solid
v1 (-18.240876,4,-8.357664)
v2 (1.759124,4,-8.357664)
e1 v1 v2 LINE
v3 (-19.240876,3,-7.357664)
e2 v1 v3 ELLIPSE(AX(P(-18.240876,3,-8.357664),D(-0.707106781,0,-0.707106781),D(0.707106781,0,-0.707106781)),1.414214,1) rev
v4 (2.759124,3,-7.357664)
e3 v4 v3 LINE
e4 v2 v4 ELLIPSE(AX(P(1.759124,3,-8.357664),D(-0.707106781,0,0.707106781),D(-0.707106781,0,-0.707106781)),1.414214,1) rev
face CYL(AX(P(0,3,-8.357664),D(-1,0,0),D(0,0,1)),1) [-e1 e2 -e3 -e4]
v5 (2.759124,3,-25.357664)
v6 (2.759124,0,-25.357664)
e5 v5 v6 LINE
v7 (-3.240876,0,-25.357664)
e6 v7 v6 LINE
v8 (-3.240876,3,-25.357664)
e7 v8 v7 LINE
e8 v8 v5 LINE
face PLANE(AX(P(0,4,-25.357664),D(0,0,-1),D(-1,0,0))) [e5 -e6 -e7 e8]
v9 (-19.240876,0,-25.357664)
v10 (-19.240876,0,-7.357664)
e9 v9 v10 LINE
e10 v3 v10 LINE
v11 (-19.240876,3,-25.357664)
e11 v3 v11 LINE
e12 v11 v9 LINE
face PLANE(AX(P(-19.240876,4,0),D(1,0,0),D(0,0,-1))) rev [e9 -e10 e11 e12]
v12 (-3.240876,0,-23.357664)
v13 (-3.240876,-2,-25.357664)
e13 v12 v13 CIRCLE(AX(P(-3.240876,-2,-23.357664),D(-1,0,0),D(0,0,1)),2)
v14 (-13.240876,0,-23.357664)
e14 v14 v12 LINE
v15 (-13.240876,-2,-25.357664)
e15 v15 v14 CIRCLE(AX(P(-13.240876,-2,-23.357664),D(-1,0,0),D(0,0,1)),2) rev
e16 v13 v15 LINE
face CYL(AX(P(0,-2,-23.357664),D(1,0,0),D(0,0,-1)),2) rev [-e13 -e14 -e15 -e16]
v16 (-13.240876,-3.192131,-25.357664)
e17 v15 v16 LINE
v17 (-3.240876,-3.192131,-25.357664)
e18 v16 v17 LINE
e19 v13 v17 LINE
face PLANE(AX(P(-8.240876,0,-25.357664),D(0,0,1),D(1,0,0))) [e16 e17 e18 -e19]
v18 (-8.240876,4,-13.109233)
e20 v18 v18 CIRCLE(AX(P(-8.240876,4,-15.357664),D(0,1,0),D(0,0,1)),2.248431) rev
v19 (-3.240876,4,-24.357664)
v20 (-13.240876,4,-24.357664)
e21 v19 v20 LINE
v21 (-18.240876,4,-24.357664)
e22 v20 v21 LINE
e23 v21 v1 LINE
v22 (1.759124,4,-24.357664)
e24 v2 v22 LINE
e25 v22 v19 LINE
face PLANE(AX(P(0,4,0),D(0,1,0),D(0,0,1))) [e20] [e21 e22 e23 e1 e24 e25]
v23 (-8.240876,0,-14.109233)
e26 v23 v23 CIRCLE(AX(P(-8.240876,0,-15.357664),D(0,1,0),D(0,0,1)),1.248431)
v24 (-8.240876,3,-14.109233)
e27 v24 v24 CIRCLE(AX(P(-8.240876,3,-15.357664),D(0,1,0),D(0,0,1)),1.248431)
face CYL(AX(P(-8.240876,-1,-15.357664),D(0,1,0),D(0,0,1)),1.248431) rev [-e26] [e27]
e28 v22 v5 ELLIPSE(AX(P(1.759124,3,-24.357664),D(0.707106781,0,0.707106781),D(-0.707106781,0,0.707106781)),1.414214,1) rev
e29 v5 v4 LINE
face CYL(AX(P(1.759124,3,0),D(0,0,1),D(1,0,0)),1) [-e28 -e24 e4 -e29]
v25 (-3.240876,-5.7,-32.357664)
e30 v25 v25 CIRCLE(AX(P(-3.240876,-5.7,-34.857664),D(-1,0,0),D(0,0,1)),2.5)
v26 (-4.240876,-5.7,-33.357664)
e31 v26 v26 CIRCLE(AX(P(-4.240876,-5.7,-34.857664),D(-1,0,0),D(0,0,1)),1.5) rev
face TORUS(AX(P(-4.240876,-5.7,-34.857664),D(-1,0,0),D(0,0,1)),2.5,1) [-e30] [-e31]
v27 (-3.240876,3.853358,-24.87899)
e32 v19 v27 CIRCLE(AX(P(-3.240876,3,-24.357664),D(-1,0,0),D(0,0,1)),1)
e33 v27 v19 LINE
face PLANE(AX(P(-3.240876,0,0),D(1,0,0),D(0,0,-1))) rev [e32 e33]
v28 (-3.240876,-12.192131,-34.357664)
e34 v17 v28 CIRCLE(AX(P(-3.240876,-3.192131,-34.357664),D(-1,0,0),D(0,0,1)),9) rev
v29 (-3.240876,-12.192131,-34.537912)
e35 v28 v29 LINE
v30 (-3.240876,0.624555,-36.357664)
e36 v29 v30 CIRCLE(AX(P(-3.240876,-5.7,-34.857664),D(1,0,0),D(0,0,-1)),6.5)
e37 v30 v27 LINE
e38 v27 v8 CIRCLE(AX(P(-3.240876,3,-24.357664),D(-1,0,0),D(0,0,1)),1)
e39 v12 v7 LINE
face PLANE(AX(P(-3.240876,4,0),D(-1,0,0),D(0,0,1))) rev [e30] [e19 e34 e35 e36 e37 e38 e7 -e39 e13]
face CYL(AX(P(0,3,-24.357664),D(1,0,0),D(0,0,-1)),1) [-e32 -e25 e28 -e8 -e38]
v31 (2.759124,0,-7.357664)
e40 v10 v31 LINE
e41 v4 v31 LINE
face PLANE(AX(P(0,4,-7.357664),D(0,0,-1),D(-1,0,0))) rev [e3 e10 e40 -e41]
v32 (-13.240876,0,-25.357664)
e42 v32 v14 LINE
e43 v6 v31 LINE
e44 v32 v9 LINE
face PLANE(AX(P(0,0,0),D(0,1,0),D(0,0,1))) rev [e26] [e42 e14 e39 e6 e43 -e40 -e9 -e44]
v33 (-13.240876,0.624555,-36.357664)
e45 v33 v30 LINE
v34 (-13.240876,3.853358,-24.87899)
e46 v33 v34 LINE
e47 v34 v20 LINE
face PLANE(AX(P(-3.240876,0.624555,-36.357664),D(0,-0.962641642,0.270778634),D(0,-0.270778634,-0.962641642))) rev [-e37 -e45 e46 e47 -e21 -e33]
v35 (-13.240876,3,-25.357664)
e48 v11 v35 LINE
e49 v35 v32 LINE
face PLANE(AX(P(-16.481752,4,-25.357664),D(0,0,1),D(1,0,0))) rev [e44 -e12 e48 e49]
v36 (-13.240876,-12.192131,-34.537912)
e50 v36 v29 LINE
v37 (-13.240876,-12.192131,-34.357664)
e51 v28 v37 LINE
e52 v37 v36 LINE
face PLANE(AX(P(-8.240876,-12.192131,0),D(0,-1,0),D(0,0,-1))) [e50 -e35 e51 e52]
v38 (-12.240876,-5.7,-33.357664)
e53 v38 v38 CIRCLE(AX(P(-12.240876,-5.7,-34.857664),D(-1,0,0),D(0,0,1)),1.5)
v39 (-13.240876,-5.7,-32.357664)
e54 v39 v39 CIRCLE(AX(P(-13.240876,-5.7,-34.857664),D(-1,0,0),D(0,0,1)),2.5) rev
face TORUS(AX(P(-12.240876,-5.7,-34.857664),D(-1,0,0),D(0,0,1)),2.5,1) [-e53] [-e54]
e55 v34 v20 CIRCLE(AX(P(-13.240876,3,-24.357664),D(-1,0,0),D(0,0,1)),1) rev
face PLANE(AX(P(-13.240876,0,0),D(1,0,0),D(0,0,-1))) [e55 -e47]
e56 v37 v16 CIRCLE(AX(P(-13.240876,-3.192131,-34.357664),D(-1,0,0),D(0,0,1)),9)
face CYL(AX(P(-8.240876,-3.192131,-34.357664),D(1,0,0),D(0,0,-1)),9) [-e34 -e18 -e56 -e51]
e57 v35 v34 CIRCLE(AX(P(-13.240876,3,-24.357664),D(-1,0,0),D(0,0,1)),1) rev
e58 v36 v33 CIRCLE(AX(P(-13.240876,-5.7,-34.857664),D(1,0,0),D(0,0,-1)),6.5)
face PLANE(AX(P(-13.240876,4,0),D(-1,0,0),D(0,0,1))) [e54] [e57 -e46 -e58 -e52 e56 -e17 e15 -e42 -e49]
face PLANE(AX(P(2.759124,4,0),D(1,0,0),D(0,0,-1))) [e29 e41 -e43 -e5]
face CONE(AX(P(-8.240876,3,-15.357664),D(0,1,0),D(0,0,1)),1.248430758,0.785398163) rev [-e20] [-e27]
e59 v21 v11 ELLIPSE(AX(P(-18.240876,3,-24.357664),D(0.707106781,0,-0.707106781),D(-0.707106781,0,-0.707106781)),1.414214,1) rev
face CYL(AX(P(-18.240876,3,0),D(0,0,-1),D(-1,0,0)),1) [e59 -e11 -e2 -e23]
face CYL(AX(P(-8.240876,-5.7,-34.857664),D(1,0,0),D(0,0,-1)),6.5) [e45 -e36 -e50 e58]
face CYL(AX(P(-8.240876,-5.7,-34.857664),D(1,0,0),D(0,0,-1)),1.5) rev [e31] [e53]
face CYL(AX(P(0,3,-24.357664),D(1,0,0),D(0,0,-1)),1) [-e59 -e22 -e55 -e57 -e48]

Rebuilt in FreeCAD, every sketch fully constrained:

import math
import FreeCAD as App
import Part
import Sketcher


def edges_at(feature, points):
    """Names of the edges that pass closest to the given points."""
    edges = feature.Shape.Edges
    near = lambda p: min(range(len(edges)), key=lambda i: edges[i].distToShape(Part.Vertex(*p))[0])
    return sorted({f"Edge{near(p) + 1}" for p in points})


def add_polygon(sketch, points):
    """Adds a closed chain of lines whose ends are joined by coincident constraints."""
    first, n = sketch.GeometryCount, len(points)
    for a, b in zip(points, points[1:] + points[:1]):
        sketch.addGeometry(Part.LineSegment(App.Vector(*a, 0), App.Vector(*b, 0)), False)
    for i in range(n):
        sketch.addConstraint(Sketcher.Constraint("Coincident", first + i, 2, first + (i + 1) % n, 1))

doc = App.newDocument("Part")
body = doc.addObject("PartDesign::Body", "Body")

# Sketch on XZ plane
sketch1 = body.newObject("Sketcher::SketchObject", "Sketch")
sketch1.AttachmentSupport = (doc.getObject("XZ_Plane"), [""])
sketch1.MapMode = "FlatFace"
add_polygon(sketch1, [(-8, -7), (3, -7), (3, -25), (-3, -25), (-3, -36), (-8, -36)])  # lines 0-5
sketch1.addConstraint(Sketcher.Constraint("Horizontal", 0))
sketch1.addConstraint(Sketcher.Constraint("Vertical", 1))
sketch1.addConstraint(Sketcher.Constraint("Horizontal", 2))
sketch1.addConstraint(Sketcher.Constraint("Vertical", 3))
sketch1.addConstraint(Sketcher.Constraint("Horizontal", 4))
sketch1.addConstraint(Sketcher.Constraint("Vertical", 5))
sketch1.addConstraint(Sketcher.Constraint("Equal", 0, 3))
sketch1.addConstraint(Sketcher.Constraint("DistanceX", 0, 1, 0, 2, 11.0))
sketch1.addConstraint(Sketcher.Constraint("DistanceX", 2, 2, 2, 1, 6.0))
sketch1.addConstraint(Sketcher.Constraint("DistanceY", 1, 2, 1, 1, 18.0))
sketch1.addConstraint(Sketcher.Constraint("DistanceX", -1, 1, 0, 2, 2.759124))
sketch1.addConstraint(Sketcher.Constraint("DistanceY", 0, 2, -1, 1, 7.357664))
pad1 = body.newObject("PartDesign::Pad", "Pad")
pad1.Profile = sketch1
pad1.Length = 4
pad1.Reversed = True

# Sketch on YZ plane
sketch2 = body.newObject("Sketcher::SketchObject", "Sketch001")
sketch2.AttachmentSupport = (doc.getObject("YZ_Plane"), [""])
sketch2.MapMode = "FlatFace"
sketch2.AttachmentOffset = App.Placement(App.Vector(0, 0, -3.240876), App.Rotation())
sketch2.addGeometry(Part.LineSegment(App.Vector(0, -25.4, 0), App.Vector(-12.2, -25.4, 0)), False)
sketch2.addGeometry(Part.LineSegment(App.Vector(-12.2, -25.4, 0), App.Vector(-12.2, -34.5, 0)), False)
sketch2.addGeometry(Part.ArcOfCircle(Part.Circle(App.Vector(-5.7, -34.9, 0), App.Vector(0, 0, 1), 6.5), math.radians(177), math.radians(347)), False)
sketch2.addGeometry(Part.LineSegment(App.Vector(0.6, -36.4, 0), App.Vector(0, -36.4, 0)), False)
sketch2.addGeometry(Part.LineSegment(App.Vector(0, -36.4, 0), App.Vector(0, -25.4, 0)), False)
sketch2.addGeometry(Part.ArcOfCircle(Part.Circle(App.Vector(-5.7, -34.9, 0), App.Vector(0, 0, 1), 1.5), math.radians(12), math.radians(168)), False)
sketch2.addGeometry(Part.ArcOfCircle(Part.Circle(App.Vector(-5.7, -34.9, 0), App.Vector(0, 0, 1), 1.5), math.radians(-90), math.radians(12)), False)
sketch2.addGeometry(Part.ArcOfCircle(Part.Circle(App.Vector(-5.7, -34.9, 0), App.Vector(0, 0, 1), 1.5), math.radians(168), math.radians(270)), False)
sketch2.addConstraint(Sketcher.Constraint("Coincident", 0, 2, 1, 1))
sketch2.addConstraint(Sketcher.Constraint("Coincident", 1, 2, 2, 1))
sketch2.addConstraint(Sketcher.Constraint("Coincident", 2, 2, 3, 1))
sketch2.addConstraint(Sketcher.Constraint("Coincident", 3, 2, 4, 1))
sketch2.addConstraint(Sketcher.Constraint("Coincident", 4, 2, 0, 1))
sketch2.addConstraint(Sketcher.Constraint("Tangent", 5, 1, 6, 2))
sketch2.addConstraint(Sketcher.Constraint("Tangent", 6, 1, 7, 2))
sketch2.addConstraint(Sketcher.Constraint("Tangent", 7, 1, 5, 2))
sketch2.addConstraint(Sketcher.Constraint("Horizontal", 0))
sketch2.addConstraint(Sketcher.Constraint("Vertical", 1))
sketch2.addConstraint(Sketcher.Constraint("Horizontal", 3))
sketch2.addConstraint(Sketcher.Constraint("Vertical", 4))
sketch2.addConstraint(Sketcher.Constraint("Coincident", 5, 3, 2, 3))
sketch2.addConstraint(Sketcher.Constraint("PointOnObject", 3, 2, -2))
sketch2.addConstraint(Sketcher.Constraint("Horizontal", 1, 2, 5, 1))
sketch2.addConstraint(Sketcher.Constraint("Horizontal", 3, 2, 6, 1))
sketch2.addConstraint(Sketcher.Constraint("Horizontal", 5, 1, 7, 1))
sketch2.addConstraint(Sketcher.Constraint("Vertical", 7, 3, 6, 1))
sketch2.addConstraint(Sketcher.Constraint("Radius", 2, 6.5))
sketch2.addConstraint(Sketcher.Constraint("Radius", 5, 1.5))
sketch2.addConstraint(Sketcher.Constraint("DistanceY", 4, 1, 4, 2, 11.0))
sketch2.addConstraint(Sketcher.Constraint("DistanceX", 2, 3, -1, 1, 5.7))
sketch2.addConstraint(Sketcher.Constraint("DistanceX", 0, 2, 0, 1, 12.192131))
sketch2.addConstraint(Sketcher.Constraint("DistanceY", 1, 2, -1, 1, 34.537912))
pad2 = body.newObject("PartDesign::Pad", "Pad001")
pad2.Profile = sketch2
pad2.Length = 5
pad2.Reversed = True
doc.recompute()

datumplane = body.newObject("PartDesign::Plane", "DatumPlane")
datumplane.AttachmentSupport = (doc.getObject("YZ_Plane"), [""])
datumplane.MapMode = "FlatFace"
datumplane.AttachmentOffset = App.Placement(App.Vector(0, 0, -8.240876), App.Rotation())
mirrored = body.newObject("PartDesign::Mirrored", "Mirrored")
mirrored.Originals = [pad1, pad2]
mirrored.MirrorPlane = (datumplane, [""])
body.Tip = mirrored

# Sketch on XZ plane
sketch3 = body.newObject("Sketcher::SketchObject", "Sketch002")
sketch3.AttachmentSupport = (doc.getObject("XZ_Plane"), [""])
sketch3.MapMode = "FlatFace"
sketch3.AttachmentOffset = App.Placement(App.Vector(0, 0, -4), App.Rotation())
sketch3.addGeometry(Part.Circle(App.Vector(-8.2, -15.4, 0), App.Vector(0, 0, 1), 1.2), False)
sketch3.addConstraint(Sketcher.Constraint("Diameter", 0, 2.496862))
sketch3.addConstraint(Sketcher.Constraint("DistanceX", 0, 3, -1, 1, 8.240876))
sketch3.addConstraint(Sketcher.Constraint("DistanceY", 0, 3, -1, 1, 15.357664))
pocket1 = body.newObject("PartDesign::Pocket", "Pocket")
pocket1.Profile = sketch3
pocket1.Length = 5
pocket1.Reversed = True
doc.recompute()

fillet = body.newObject("PartDesign::Fillet", "Fillet")
fillet.Base = (pocket1, edges_at(pocket1, [
    (-0.241, 4, -25.358),
    (-3.241, -4.532, -35.799),
    (-8.241, 4, -7.358),
    (-19.241, 4, -16.358),
    (-16.241, 4, -25.358),
    (2.759, 4, -16.358),
    (-13.241, -4.532, -35.799),
]))
fillet.Radius = 1
doc.recompute()

fillet2 = body.newObject("PartDesign::Fillet", "Fillet001")
fillet2.Base = (fillet, edges_at(fillet, [(-8.241, 0, -25.358)]))
fillet2.Radius = 2
doc.recompute()

fillet3 = body.newObject("PartDesign::Fillet", "Fillet002")
fillet3.Base = (fillet2, edges_at(fillet2, [(-8.241, -12.192, -25.358)]))
fillet3.Radius = 9

# Sketch on YZ plane
sketch4 = body.newObject("Sketcher::SketchObject", "Sketch003")
sketch4.AttachmentSupport = (doc.getObject("YZ_Plane"), [""])
sketch4.MapMode = "FlatFace"
sketch4.AttachmentOffset = App.Placement(App.Vector(0, 0, -13.240876), App.Rotation())
add_polygon(sketch4, [(0.6, -36.4), (4, -24.4), (4, -36.4)])  # lines 0-2
sketch4.addConstraint(Sketcher.Constraint("Vertical", 1))
sketch4.addConstraint(Sketcher.Constraint("Horizontal", 2))
sketch4.addConstraint(Sketcher.Constraint("DistanceY", 1, 2, 1, 1, 12.0))
sketch4.addConstraint(Sketcher.Constraint("DistanceX", -1, 1, 0, 2, 4.0))
sketch4.addConstraint(Sketcher.Constraint("Distance", 0, 12.465698))
sketch4.addConstraint(Sketcher.Constraint("DistanceY", 0, 2, -1, 1, 24.357664))
pocket2 = body.newObject("PartDesign::Pocket", "Pocket001")
pocket2.Profile = sketch4
pocket2.Length = 10
pocket2.Reversed = True
doc.recompute()

chamfer = body.newObject("PartDesign::Chamfer", "Chamfer")
chamfer.Base = (pocket2, edges_at(pocket2, [(-8.241, 4, -16.606)]))
chamfer.Size = 1

doc.recompute()
